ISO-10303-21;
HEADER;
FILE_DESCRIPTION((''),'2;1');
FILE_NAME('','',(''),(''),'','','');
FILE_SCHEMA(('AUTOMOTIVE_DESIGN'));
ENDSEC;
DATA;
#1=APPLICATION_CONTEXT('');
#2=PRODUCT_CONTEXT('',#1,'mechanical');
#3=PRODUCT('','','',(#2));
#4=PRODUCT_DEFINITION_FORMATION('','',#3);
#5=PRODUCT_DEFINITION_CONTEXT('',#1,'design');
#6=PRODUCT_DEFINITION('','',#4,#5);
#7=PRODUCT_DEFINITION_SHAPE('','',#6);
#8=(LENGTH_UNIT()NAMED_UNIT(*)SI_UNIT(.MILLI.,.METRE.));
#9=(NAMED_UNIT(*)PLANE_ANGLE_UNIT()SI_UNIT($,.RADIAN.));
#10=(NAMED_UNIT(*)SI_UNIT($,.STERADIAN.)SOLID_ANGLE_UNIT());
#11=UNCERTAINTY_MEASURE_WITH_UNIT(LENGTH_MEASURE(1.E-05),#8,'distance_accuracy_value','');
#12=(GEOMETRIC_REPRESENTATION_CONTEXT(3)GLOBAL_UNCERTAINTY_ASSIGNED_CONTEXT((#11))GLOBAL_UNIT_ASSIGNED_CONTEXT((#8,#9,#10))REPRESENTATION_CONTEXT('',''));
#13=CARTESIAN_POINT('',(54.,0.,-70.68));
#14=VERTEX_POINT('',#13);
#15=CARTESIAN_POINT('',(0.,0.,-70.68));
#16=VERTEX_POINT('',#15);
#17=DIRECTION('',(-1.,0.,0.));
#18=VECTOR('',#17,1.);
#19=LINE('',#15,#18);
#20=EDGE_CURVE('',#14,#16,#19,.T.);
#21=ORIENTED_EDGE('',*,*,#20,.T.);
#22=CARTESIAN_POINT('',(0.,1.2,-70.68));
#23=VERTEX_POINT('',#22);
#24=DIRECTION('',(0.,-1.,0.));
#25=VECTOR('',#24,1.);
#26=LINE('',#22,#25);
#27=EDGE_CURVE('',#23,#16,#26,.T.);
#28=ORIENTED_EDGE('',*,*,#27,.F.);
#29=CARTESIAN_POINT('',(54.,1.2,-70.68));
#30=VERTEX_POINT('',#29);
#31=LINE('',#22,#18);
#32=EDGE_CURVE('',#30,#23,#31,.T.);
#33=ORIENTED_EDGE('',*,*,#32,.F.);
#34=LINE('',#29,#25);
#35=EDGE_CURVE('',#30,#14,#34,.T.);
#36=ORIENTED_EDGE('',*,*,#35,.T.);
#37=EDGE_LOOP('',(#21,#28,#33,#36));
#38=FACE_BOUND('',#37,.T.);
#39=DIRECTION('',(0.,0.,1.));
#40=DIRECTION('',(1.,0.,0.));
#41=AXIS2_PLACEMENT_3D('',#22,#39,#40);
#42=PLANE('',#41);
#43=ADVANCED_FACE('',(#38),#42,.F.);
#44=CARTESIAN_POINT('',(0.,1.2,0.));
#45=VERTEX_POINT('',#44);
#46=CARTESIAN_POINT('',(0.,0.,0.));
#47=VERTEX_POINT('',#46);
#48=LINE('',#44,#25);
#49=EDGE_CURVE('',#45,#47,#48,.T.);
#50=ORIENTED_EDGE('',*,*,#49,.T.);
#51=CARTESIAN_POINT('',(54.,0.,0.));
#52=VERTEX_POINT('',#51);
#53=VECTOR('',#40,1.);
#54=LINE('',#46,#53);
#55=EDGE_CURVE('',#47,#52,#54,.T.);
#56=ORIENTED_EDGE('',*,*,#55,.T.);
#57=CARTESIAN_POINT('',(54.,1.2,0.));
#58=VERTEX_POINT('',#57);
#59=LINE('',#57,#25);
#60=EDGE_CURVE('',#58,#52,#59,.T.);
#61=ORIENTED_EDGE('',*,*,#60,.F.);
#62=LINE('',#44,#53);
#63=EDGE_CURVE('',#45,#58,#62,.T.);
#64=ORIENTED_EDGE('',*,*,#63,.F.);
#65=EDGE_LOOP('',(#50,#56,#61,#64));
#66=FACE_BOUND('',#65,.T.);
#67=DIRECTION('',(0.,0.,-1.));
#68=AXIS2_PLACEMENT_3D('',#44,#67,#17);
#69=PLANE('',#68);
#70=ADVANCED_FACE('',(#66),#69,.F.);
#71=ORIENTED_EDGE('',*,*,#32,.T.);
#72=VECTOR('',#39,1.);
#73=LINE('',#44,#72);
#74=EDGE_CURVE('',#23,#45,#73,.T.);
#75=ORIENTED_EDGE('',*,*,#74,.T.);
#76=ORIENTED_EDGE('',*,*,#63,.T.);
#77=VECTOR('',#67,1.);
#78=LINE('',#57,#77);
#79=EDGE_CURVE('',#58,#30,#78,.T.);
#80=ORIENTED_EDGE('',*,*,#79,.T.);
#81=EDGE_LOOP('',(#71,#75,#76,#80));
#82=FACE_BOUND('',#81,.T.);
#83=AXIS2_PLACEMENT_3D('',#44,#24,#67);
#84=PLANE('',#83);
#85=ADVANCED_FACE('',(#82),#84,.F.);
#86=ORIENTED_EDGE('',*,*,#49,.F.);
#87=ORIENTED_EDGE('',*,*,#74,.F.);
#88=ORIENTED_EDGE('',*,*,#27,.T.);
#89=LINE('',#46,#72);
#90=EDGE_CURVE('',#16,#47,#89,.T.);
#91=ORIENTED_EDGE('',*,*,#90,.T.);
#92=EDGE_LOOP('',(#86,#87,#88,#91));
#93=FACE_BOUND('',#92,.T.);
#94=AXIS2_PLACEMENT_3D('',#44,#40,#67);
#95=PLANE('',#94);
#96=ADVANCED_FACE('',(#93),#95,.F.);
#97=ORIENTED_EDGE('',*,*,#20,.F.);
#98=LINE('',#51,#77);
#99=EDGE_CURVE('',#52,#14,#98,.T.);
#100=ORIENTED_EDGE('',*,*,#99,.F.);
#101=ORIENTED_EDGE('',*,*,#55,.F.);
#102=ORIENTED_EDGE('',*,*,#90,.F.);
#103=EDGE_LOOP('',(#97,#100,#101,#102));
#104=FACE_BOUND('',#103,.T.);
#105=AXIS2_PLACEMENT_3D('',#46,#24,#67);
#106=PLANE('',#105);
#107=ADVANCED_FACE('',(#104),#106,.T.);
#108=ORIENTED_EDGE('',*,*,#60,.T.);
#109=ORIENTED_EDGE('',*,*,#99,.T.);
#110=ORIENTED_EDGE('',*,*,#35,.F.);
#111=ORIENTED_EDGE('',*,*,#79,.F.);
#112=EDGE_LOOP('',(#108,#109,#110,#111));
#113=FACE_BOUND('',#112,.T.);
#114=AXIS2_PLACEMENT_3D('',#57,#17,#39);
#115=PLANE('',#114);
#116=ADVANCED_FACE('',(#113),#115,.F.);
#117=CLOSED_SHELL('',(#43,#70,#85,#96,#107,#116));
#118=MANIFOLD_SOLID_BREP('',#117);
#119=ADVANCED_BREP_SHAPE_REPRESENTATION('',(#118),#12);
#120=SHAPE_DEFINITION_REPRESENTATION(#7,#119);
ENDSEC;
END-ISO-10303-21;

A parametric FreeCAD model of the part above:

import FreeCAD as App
import Part
import Sketcher
from FreeCAD import Vector
Q = App.Units.Quantity


def add_polygon(sketch, points):
    """Adds a closed chain of lines whose ends are joined by coincident constraints."""
    first, n = sketch.GeometryCount, len(points)
    for a, b in zip(points, points[1:] + points[:1]):
        sketch.addGeometry(Part.LineSegment(App.Vector(*a, 0), App.Vector(*b, 0)), False)
    for i in range(n):
        sketch.addConstraint(Sketcher.Constraint("Coincident", first + i, 2, first + (i + 1) % n, 1))

doc = App.newDocument("Part")
body = doc.addObject("PartDesign::Body", "Body")

# Sketch on XZ plane
sketch1 = body.newObject("Sketcher::SketchObject", "Sketch")
sketch1.AttachmentSupport = (doc.getObject("XZ_Plane"), [""])
sketch1.MapMode = "FlatFace"
add_polygon(sketch1, [(0, -71), (0, 0), (54, 0), (54, -71)])  # lines 0-3
sketch1.addConstraint(Sketcher.Constraint("Vertical", 0))
sketch1.addConstraint(Sketcher.Constraint("Horizontal", 1))
sketch1.addConstraint(Sketcher.Constraint("Vertical", 2))
sketch1.addConstraint(Sketcher.Constraint("Horizontal", 3))
sketch1.addConstraint(Sketcher.Constraint("Coincident", 0, 2, -1, 1))
sketch1.addConstraint(Sketcher.Constraint("DistanceX", 1, 1, 1, 2, Q("54 mm")))
sketch1.addConstraint(Sketcher.Constraint("DistanceY", 0, 1, 0, 2, Q("70.68 mm")))
pad1 = body.newObject("PartDesign::Pad", "Pad")
pad1.Profile = sketch1
pad1.Length = 1.2
pad1.Reversed = True

doc.recompute()
